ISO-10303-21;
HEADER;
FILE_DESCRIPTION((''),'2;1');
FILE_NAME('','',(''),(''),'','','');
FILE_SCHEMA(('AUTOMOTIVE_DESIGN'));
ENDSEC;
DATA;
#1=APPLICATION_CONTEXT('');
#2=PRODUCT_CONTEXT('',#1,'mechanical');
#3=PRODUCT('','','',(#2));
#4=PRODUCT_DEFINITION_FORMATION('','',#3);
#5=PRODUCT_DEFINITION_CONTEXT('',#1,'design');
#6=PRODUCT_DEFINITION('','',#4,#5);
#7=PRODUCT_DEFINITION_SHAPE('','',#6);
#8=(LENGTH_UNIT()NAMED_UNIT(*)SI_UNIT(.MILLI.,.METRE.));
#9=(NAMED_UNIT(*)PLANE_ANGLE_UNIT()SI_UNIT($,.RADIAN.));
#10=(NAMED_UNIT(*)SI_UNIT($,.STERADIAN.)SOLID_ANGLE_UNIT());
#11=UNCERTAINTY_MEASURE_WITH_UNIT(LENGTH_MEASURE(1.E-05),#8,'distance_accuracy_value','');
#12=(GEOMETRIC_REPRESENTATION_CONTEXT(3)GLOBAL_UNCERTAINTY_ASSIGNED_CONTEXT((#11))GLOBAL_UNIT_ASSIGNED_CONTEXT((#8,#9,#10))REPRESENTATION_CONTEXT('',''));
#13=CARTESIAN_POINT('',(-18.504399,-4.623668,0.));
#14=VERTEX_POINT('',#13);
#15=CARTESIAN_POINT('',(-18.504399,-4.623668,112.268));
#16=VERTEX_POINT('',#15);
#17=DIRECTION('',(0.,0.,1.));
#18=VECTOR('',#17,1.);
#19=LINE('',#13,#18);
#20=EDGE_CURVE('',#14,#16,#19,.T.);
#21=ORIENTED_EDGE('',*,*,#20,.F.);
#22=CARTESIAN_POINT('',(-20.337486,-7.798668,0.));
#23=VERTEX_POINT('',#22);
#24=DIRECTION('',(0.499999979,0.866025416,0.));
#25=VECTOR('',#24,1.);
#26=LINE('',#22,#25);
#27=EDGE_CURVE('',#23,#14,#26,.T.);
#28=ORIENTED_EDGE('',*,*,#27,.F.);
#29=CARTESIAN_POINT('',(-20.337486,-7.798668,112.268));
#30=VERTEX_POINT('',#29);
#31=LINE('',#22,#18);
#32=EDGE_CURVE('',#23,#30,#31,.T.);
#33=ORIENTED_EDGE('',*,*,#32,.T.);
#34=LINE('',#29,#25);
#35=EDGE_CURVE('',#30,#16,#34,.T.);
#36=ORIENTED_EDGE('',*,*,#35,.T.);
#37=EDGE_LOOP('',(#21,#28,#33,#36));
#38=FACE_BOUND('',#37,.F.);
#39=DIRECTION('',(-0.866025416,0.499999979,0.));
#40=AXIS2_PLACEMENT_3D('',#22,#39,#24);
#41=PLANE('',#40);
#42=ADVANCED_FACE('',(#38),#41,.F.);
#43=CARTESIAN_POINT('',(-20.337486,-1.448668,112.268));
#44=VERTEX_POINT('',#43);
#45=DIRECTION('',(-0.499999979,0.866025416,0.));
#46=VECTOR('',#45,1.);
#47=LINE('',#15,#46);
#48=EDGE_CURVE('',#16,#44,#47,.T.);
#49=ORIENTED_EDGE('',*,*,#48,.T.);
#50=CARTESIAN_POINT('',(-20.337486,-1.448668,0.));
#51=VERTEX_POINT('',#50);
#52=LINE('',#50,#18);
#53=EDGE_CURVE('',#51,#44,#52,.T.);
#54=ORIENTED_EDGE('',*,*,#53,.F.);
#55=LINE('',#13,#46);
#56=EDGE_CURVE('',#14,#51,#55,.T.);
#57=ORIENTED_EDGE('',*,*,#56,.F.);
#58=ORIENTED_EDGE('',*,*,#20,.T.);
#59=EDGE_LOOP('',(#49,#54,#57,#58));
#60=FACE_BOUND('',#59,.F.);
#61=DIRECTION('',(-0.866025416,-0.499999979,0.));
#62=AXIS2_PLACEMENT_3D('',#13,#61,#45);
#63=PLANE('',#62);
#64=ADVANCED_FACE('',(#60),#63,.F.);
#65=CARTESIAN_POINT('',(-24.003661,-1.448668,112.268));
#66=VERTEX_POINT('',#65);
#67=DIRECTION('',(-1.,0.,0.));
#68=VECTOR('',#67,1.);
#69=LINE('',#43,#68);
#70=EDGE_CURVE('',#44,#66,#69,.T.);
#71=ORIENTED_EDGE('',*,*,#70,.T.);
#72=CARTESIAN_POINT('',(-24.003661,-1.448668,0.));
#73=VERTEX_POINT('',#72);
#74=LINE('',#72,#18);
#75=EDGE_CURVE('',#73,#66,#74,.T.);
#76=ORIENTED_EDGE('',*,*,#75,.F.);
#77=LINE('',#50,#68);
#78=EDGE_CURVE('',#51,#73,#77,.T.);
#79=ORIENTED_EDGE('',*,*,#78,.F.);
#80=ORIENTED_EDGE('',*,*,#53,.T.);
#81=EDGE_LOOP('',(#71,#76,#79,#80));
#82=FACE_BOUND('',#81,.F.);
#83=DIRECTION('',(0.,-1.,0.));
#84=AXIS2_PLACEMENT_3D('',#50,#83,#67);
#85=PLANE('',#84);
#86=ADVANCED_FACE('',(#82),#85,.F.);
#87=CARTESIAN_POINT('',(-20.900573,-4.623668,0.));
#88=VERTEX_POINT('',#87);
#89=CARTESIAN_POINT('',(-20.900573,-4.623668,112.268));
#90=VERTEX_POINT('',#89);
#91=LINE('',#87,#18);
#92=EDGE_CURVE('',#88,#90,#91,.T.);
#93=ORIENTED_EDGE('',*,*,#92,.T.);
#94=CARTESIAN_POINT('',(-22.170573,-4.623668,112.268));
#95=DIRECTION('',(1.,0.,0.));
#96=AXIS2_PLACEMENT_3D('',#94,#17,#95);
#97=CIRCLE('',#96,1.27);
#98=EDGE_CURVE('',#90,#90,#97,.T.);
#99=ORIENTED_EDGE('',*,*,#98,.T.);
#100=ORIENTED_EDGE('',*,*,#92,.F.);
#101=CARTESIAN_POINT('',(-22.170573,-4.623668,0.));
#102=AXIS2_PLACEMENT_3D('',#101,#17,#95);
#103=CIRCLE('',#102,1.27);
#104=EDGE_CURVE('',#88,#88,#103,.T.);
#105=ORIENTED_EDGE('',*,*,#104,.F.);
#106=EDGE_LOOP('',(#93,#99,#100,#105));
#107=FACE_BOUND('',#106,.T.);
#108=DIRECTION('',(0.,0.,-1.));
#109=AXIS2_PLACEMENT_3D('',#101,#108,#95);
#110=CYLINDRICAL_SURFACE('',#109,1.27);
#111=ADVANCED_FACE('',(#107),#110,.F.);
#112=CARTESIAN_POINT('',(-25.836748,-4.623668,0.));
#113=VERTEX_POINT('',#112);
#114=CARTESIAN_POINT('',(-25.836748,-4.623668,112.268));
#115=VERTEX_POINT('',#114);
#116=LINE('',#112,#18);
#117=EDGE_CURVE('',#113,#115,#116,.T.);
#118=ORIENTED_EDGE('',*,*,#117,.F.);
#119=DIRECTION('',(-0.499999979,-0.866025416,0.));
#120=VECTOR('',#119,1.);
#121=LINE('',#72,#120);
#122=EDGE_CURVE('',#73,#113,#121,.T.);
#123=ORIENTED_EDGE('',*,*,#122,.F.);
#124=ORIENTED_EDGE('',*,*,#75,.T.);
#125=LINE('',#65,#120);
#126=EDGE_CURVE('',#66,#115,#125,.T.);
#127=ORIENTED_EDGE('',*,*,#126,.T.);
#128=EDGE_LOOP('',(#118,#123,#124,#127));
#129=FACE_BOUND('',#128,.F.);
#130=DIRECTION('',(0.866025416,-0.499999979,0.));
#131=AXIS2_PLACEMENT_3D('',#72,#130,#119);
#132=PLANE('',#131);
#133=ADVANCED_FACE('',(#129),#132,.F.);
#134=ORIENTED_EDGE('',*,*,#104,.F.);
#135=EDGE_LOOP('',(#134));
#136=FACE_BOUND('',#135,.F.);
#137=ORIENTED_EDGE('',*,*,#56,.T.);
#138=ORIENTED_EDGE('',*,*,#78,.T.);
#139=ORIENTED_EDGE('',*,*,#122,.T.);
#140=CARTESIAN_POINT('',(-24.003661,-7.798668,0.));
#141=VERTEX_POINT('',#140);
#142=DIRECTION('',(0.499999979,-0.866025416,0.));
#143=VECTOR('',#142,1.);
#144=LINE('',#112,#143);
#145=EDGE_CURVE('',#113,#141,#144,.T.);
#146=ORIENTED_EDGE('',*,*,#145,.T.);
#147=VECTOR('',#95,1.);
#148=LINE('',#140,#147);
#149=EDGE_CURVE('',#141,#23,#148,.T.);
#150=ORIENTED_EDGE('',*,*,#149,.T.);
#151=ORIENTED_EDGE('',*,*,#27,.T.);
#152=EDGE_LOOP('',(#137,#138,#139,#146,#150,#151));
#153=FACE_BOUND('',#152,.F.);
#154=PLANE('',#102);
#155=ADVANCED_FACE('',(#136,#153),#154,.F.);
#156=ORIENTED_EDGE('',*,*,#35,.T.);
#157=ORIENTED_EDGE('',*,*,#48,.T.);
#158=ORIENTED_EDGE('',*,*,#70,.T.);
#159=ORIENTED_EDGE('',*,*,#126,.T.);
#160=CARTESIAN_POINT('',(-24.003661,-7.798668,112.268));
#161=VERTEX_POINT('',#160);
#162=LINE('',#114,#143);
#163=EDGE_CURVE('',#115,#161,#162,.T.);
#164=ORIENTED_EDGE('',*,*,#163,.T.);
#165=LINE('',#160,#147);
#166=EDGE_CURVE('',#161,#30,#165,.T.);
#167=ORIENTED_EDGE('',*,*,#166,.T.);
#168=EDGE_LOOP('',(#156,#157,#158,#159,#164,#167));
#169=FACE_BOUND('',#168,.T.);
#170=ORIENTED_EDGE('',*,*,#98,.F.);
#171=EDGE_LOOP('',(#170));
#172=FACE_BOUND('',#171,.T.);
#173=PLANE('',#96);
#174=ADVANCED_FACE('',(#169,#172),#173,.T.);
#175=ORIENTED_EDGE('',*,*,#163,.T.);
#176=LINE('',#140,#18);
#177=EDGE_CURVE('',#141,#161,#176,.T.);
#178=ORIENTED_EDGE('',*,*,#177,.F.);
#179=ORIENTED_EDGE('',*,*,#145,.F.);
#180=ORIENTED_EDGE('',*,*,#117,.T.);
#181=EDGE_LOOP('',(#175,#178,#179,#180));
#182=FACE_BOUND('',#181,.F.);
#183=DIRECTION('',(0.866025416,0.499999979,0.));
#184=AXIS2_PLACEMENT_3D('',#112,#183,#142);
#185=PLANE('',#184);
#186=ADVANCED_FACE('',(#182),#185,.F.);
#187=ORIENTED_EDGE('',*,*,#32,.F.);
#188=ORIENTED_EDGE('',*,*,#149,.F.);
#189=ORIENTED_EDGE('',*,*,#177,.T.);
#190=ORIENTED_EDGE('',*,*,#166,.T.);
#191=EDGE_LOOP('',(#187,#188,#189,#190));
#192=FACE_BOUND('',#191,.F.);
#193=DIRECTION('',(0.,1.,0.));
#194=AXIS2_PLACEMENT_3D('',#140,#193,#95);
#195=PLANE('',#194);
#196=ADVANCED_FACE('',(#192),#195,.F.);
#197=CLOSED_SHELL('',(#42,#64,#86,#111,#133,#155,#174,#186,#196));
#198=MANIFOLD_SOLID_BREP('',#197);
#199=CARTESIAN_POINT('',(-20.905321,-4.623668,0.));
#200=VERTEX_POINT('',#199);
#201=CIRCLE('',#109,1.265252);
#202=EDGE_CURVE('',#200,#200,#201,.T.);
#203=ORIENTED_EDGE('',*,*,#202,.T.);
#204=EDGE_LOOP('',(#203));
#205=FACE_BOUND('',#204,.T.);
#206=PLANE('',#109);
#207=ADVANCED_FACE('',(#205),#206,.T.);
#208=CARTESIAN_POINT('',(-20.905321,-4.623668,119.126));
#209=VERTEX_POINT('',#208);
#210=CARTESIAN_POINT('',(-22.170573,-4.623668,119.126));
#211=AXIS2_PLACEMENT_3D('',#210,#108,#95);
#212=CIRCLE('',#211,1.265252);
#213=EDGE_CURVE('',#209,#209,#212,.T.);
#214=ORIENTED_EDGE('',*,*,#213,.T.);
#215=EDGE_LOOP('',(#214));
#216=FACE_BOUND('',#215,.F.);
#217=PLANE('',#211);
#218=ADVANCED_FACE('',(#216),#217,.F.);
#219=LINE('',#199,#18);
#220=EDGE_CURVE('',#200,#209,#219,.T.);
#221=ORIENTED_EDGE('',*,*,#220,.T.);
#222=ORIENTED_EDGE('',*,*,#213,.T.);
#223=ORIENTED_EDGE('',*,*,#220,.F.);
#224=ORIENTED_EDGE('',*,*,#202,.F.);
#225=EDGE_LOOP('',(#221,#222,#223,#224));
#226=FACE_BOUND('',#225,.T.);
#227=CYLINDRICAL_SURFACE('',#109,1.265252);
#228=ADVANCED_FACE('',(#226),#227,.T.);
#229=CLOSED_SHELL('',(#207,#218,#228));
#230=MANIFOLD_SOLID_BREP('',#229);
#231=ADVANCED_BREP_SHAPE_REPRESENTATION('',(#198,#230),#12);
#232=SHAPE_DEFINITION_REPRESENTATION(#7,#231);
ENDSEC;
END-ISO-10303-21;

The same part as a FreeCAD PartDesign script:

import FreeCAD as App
import Part
import Sketcher
from FreeCAD import Vector
Q = App.Units.Quantity

doc = App.newDocument("Part")
body = doc.addObject("PartDesign::Body", "Body")

sketch1 = doc.addObject("Sketcher::SketchObject", "Sketch")
body.addObject(sketch1)
sketch1.AttachmentSupport = (doc.XY_Plane, [""])
sketch1.MapMode = "FlatFace"
sketch1.addGeometry([
    Part.LineSegment(Vector(-24, -7.8, 0), Vector(-20.3, -7.8, 0)),
    Part.LineSegment(Vector(-20.3, -7.8, 0), Vector(-18.5, -4.6, 0)),
    Part.LineSegment(Vector(-18.5, -4.6, 0), Vector(-20.3, -1.4, 0)),
    Part.LineSegment(Vector(-20.3, -1.4, 0), Vector(-24, -1.4, 0)),
    Part.LineSegment(Vector(-24, -1.4, 0), Vector(-25.8, -4.6, 0)),
    Part.LineSegment(Vector(-25.8, -4.6, 0), Vector(-24, -7.8, 0)),
    Part.Circle(Vector(-22.2, -4.6, 0), Vector(0, 0, 1), 1.3),
], False)
sketch1.addConstraint([
    Sketcher.Constraint("Coincident", 0, 2, 1, 1),
    Sketcher.Constraint("Coincident", 1, 2, 2, 1),
    Sketcher.Constraint("Coincident", 2, 2, 3, 1),
    Sketcher.Constraint("Coincident", 3, 2, 4, 1),
    Sketcher.Constraint("Coincident", 4, 2, 5, 1),
    Sketcher.Constraint("Coincident", 5, 2, 0, 1),
    Sketcher.Constraint("Horizontal", 0),
    Sketcher.Constraint("Horizontal", 3),
    Sketcher.Constraint("Parallel", 1, 4),
    Sketcher.Constraint("Parallel", 2, 5),
    Sketcher.Constraint("Horizontal", 6, 3, 1, 2),
    Sketcher.Constraint("Horizontal", 1, 2, 4, 2),
    Sketcher.Constraint("Vertical", 0, 2, 2, 2),
    Sketcher.Constraint("Vertical", 3, 2, 5, 2),
    Sketcher.Constraint("Diameter", 6, Q("0.1 in")),
    Sketcher.Constraint("Angle", 1, Q("60.000001 deg")),
    Sketcher.Constraint("DistanceY", 0, 2, 2, 2, Q("0.25 in")),
    Sketcher.Constraint("DistanceX", 1, 2, -1, 1, 18.504399),
    Sketcher.Constraint("DistanceX", 0, 1, 0, 2, 3.666175),
    Sketcher.Constraint("DistanceY", 6, 3, -1, 1, 4.623668),
    Sketcher.Constraint("DistanceX", 6, 3, -1, 1, 22.170573),
])
pad1 = doc.addObject("PartDesign::Pad", "Pad")
body.addObject(pad1)
pad1.Profile = sketch1
pad1.Length = Q("4.42 in")
body2 = doc.addObject("PartDesign::Body", "Body001")

sketch2 = doc.addObject("Sketcher::SketchObject", "Sketch001")
body2.addObject(sketch2)
sketch2.AttachmentSupport = (doc.getObject("XY_Plane001"), [""])
sketch2.MapMode = "FlatFace"
sketch2.addGeometry(Part.Circle(Vector(-22.2, -4.6, 0), Vector(0, 0, 1), 1.3), False)
sketch2.addConstraint([
    Sketcher.Constraint("Diameter", 0, 2.530504),
    Sketcher.Constraint("DistanceY", 0, 3, -1, 1, 4.623668),
    Sketcher.Constraint("DistanceX", 0, 3, -1, 1, 22.170573),
])
pad2 = doc.addObject("PartDesign::Pad", "Pad001")
body2.addObject(pad2)
pad2.Profile = sketch2
pad2.Length = Q("4.69 in")

doc.recompute()
